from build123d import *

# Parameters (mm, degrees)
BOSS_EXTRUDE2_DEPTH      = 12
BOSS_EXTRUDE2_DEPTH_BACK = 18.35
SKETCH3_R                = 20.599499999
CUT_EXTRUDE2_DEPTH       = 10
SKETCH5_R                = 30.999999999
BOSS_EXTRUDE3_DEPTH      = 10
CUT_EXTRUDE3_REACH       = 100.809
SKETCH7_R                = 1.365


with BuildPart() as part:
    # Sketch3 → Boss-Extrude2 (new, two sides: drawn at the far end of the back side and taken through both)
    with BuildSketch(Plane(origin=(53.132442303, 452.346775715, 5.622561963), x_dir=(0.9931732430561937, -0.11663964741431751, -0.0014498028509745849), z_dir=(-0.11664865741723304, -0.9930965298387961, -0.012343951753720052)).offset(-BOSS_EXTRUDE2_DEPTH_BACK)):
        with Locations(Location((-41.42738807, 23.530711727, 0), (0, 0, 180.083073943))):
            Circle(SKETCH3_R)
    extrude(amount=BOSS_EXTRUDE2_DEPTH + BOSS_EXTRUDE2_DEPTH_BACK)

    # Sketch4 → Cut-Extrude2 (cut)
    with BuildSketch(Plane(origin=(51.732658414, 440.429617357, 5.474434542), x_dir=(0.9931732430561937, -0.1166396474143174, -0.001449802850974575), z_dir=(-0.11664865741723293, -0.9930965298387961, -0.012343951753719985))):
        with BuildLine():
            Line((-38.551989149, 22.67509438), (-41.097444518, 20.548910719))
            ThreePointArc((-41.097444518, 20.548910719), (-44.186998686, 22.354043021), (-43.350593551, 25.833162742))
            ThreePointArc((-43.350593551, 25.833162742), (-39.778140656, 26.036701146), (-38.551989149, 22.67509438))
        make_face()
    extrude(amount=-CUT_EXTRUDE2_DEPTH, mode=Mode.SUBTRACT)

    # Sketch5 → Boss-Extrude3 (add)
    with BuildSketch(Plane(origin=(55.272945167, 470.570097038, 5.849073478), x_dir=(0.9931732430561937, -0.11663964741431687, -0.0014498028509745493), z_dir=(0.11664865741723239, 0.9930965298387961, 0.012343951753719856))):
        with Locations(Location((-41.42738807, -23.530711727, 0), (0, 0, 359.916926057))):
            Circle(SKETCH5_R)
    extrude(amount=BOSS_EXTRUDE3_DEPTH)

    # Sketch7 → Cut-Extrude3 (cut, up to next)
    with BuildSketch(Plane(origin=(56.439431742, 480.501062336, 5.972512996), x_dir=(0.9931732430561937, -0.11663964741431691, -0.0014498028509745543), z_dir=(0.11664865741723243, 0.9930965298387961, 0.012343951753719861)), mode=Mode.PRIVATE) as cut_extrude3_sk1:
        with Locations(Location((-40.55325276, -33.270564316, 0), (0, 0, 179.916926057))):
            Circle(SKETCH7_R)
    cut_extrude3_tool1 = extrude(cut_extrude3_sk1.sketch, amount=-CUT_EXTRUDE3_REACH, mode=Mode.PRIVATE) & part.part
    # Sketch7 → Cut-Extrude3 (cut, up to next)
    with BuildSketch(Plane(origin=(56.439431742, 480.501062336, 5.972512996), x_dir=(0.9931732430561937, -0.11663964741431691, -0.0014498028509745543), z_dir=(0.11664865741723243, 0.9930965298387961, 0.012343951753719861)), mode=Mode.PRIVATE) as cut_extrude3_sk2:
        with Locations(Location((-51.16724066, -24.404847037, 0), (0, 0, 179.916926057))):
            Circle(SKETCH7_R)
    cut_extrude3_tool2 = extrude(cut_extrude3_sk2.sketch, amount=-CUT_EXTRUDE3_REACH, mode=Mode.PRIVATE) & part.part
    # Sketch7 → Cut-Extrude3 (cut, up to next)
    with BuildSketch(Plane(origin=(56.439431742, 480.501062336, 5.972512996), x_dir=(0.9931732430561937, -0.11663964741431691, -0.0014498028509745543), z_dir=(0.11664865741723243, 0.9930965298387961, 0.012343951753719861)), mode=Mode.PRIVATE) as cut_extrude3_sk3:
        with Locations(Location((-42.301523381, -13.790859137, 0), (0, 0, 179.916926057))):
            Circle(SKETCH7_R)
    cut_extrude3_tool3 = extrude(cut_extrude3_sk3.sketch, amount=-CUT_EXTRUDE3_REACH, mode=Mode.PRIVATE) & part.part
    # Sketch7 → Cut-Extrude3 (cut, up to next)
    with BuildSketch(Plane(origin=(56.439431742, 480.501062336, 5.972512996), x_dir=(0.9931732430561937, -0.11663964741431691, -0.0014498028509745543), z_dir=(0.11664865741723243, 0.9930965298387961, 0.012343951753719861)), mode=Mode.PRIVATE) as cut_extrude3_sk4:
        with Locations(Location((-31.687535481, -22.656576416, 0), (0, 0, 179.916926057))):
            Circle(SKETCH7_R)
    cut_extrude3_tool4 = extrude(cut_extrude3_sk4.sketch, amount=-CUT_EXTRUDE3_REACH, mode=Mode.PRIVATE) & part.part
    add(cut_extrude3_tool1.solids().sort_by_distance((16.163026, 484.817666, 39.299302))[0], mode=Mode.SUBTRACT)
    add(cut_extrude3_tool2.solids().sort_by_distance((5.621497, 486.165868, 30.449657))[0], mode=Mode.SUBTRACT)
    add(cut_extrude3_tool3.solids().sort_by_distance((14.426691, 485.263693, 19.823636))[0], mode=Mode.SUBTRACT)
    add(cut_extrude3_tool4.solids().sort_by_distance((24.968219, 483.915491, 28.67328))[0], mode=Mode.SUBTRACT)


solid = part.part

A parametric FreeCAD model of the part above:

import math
import FreeCAD as App
import Part
import Sketcher

V = App.Vector

doc = App.newDocument("Part")
params = doc.addObject("Spreadsheet::Sheet", "Params")
for row, (alias, value) in enumerate([
    ("pad1_length", "12 mm"),
    ("pad1_length2", "18.35 mm"),
    ("sketch2_radius", "3 mm"),
    ("pocket1_length", "10 mm"),
    ("sketch3_diameter", "62 mm"),
    ("pad2_length", "10 mm"),
    ("sketch4_diameter", "2.73 mm"),
    ("sketch5_diameter", "2.73 mm"),
    ("sketch6_diameter", "2.73 mm"),
    ("sketch7_diameter", "2.73 mm"),
], start=1):
    params.set(f"A{row}", alias)
    params.set(f"B{row}", "=" + value)
    params.setAlias(f"B{row}", alias)

body = doc.addObject("PartDesign::Body", "Body")

# Sketch on an angled plane
sketch1 = doc.addObject("Sketcher::SketchObject", "Sketch")
body.addObject(sketch1)
sketch1.Placement = App.Placement(V(53.132442, 452.346776, 5.622562), App.Rotation(V(0.993173243, -0.116639647, -0.001449803), V(0, -0.0124288, 0.999922759), V(-0.116648657, -0.99309653, -0.012343952), "ZXY"))
sketch1.addGeometry(Part.Circle(V(-41, 24, 0), V(0, 0, 1), 21), False)
sketch1.addConstraint([
    Sketcher.Constraint("Diameter", 0, 41.199),
    Sketcher.Constraint("DistanceX", 0, 3, -1, 1, 41.427388),
    Sketcher.Constraint("DistanceY", -1, 1, 0, 3, 23.530712),
])
pad1 = doc.addObject("PartDesign::Pad", "Pad")
body.addObject(pad1)
pad1.Profile = sketch1
pad1.Type = "TwoLengths"
pad1.setExpression("Length", "Params.pad1_length")
pad1.setExpression("Length2", "Params.pad1_length2")

# Sketch on an angled plane
sketch2 = doc.addObject("Sketcher::SketchObject", "Sketch001")
body.addObject(sketch2)
sketch2.Placement = App.Placement(V(51.732658, 440.429617, 5.474435), App.Rotation(V(0.993173243, -0.116639647, -0.001449803), V(0, -0.0124288, 0.999922759), V(-0.116648657, -0.99309653, -0.012343952), "ZXY"))
sketch2.addGeometry([
    Part.LineSegment(V(-41.1, 20.5, 0), V(-38.6, 22.7, 0)),
    Part.ArcOfCircle(Part.Circle(V(-41.4, 23.5, 0), V(0, 0, 1), 3), math.radians(-17), math.radians(130)),
    Part.ArcOfCircle(Part.Circle(V(-41.4, 23.5, 0), V(0, 0, 1), 3), math.radians(130), math.radians(276)),
], False)
sketch2.addConstraint([
    Sketcher.Constraint("Coincident", 0, 2, 1, 1),
    Sketcher.Constraint("Tangent", 1, 2, 2, 1),
    Sketcher.Constraint("Coincident", 2, 2, 0, 1),
    Sketcher.Constraint("Equal", 1, 2),
    Sketcher.Constraint("Radius", 1, 3.0),
    Sketcher.Constraint("DistanceX", 2, 3, 0, 2, 2.875399),
    Sketcher.Constraint("DistanceY", 2, 2, 2, 3, 2.981801),
    Sketcher.Constraint("DistanceX", 1, 3, -1, 1, 41.427388),
    Sketcher.Constraint("DistanceY", -1, 1, 1, 3, 23.530712),
    Sketcher.Constraint("DistanceY", 1, 3, 1, 2, 2.302451),
])
sketch2.setExpression("Constraints[4]", "Params.sketch2_radius")
pocket1 = doc.addObject("PartDesign::Pocket", "Pocket")
body.addObject(pocket1)
pocket1.Profile = sketch2
pocket1.setExpression("Length", "Params.pocket1_length")

# Sketch on an angled plane
sketch3 = doc.addObject("Sketcher::SketchObject", "Sketch002")
body.addObject(sketch3)
sketch3.Placement = App.Placement(V(55.272945, 470.570097, 5.849073), App.Rotation(V(0.993173243, -0.116639647, -0.001449803), V(0, 0.0124288, -0.999922759), V(0.116648657, 0.99309653, 0.012343952), "ZXY"))
sketch3.addGeometry(Part.Circle(V(-41, -24, 0), V(0, 0, 1), 31), False)
sketch3.addConstraint([
    Sketcher.Constraint("Diameter", 0, 62.0),
    Sketcher.Constraint("DistanceX", 0, 3, -1, 1, 41.427388),
    Sketcher.Constraint("DistanceY", 0, 3, -1, 1, 23.530712),
])
sketch3.setExpression("Constraints[0]", "Params.sketch3_diameter")
pad2 = doc.addObject("PartDesign::Pad", "Pad001")
body.addObject(pad2)
pad2.Profile = sketch3
pad2.setExpression("Length", "Params.pad2_length")

# Sketch on an angled plane
sketch4 = doc.addObject("Sketcher::SketchObject", "Sketch003")
body.addObject(sketch4)
sketch4.Placement = App.Placement(V(56.439432, 480.501062, 5.972513), App.Rotation(V(0.993173243, -0.116639647, -0.001449803), V(0, 0.0124288, -0.999922759), V(0.116648657, 0.99309653, 0.012343952), "ZXY"))
sketch4.addGeometry(Part.Circle(V(-40.6, -33.3, 0), V(0, 0, 1), 1.4), False)
sketch4.addConstraint([
    Sketcher.Constraint("Diameter", 0, 2.73),
    Sketcher.Constraint("DistanceX", 0, 3, -1, 1, 40.553253),
    Sketcher.Constraint("DistanceY", 0, 3, -1, 1, 33.270564),
])
sketch4.setExpression("Constraints[0]", "Params.sketch4_diameter")
pocket2 = doc.addObject("PartDesign::Pocket", "Pocket001")
body.addObject(pocket2)
pocket2.Profile = sketch4
pocket2.Type = "UpToFirst"

# Sketch on an angled plane
sketch5 = doc.addObject("Sketcher::SketchObject", "Sketch004")
body.addObject(sketch5)
sketch5.Placement = App.Placement(V(56.439432, 480.501062, 5.972513), App.Rotation(V(0.993173243, -0.116639647, -0.001449803), V(0, 0.0124288, -0.999922759), V(0.116648657, 0.99309653, 0.012343952), "ZXY"))
sketch5.addGeometry(Part.Circle(V(-51.2, -24.4, 0), V(0, 0, 1), 1.4), False)
sketch5.addConstraint([
    Sketcher.Constraint("Diameter", 0, 2.73),
    Sketcher.Constraint("DistanceX", 0, 3, -1, 1, 51.167241),
    Sketcher.Constraint("DistanceY", 0, 3, -1, 1, 24.404847),
])
sketch5.setExpression("Constraints[0]", "Params.sketch5_diameter")
pocket3 = doc.addObject("PartDesign::Pocket", "Pocket002")
body.addObject(pocket3)
pocket3.Profile = sketch5
pocket3.Type = "UpToFirst"

# Sketch on an angled plane
sketch6 = doc.addObject("Sketcher::SketchObject", "Sketch005")
body.addObject(sketch6)
sketch6.Placement = App.Placement(V(56.439432, 480.501062, 5.972513), App.Rotation(V(0.993173243, -0.116639647, -0.001449803), V(0, 0.0124288, -0.999922759), V(0.116648657, 0.99309653, 0.012343952), "ZXY"))
sketch6.addGeometry(Part.Circle(V(-42.3, -13.8, 0), V(0, 0, 1), 1.4), False)
sketch6.addConstraint([
    Sketcher.Constraint("Diameter", 0, 2.73),
    Sketcher.Constraint("DistanceY", 0, 3, -1, 1, 13.790859),
    Sketcher.Constraint("DistanceX", 0, 3, -1, 1, 42.301523),
])
sketch6.setExpression("Constraints[0]", "Params.sketch6_diameter")
pocket4 = doc.addObject("PartDesign::Pocket", "Pocket003")
body.addObject(pocket4)
pocket4.Profile = sketch6
pocket4.Type = "UpToFirst"

# Sketch on an angled plane
sketch7 = doc.addObject("Sketcher::SketchObject", "Sketch006")
body.addObject(sketch7)
sketch7.Placement = App.Placement(V(56.439432, 480.501062, 5.972513), App.Rotation(V(0.993173243, -0.116639647, -0.001449803), V(0, 0.0124288, -0.999922759), V(0.116648657, 0.99309653, 0.012343952), "ZXY"))
sketch7.addGeometry(Part.Circle(V(-31.7, -22.7, 0), V(0, 0, 1), 1.4), False)
sketch7.addConstraint([
    Sketcher.Constraint("Diameter", 0, 2.73),
    Sketcher.Constraint("DistanceX", 0, 3, -1, 1, 31.687535),
    Sketcher.Constraint("DistanceY", 0, 3, -1, 1, 22.656576),
])
sketch7.setExpression("Constraints[0]", "Params.sketch7_diameter")
pocket5 = doc.addObject("PartDesign::Pocket", "Pocket004")
body.addObject(pocket5)
pocket5.Profile = sketch7
pocket5.Type = "UpToFirst"

doc.recompute()
